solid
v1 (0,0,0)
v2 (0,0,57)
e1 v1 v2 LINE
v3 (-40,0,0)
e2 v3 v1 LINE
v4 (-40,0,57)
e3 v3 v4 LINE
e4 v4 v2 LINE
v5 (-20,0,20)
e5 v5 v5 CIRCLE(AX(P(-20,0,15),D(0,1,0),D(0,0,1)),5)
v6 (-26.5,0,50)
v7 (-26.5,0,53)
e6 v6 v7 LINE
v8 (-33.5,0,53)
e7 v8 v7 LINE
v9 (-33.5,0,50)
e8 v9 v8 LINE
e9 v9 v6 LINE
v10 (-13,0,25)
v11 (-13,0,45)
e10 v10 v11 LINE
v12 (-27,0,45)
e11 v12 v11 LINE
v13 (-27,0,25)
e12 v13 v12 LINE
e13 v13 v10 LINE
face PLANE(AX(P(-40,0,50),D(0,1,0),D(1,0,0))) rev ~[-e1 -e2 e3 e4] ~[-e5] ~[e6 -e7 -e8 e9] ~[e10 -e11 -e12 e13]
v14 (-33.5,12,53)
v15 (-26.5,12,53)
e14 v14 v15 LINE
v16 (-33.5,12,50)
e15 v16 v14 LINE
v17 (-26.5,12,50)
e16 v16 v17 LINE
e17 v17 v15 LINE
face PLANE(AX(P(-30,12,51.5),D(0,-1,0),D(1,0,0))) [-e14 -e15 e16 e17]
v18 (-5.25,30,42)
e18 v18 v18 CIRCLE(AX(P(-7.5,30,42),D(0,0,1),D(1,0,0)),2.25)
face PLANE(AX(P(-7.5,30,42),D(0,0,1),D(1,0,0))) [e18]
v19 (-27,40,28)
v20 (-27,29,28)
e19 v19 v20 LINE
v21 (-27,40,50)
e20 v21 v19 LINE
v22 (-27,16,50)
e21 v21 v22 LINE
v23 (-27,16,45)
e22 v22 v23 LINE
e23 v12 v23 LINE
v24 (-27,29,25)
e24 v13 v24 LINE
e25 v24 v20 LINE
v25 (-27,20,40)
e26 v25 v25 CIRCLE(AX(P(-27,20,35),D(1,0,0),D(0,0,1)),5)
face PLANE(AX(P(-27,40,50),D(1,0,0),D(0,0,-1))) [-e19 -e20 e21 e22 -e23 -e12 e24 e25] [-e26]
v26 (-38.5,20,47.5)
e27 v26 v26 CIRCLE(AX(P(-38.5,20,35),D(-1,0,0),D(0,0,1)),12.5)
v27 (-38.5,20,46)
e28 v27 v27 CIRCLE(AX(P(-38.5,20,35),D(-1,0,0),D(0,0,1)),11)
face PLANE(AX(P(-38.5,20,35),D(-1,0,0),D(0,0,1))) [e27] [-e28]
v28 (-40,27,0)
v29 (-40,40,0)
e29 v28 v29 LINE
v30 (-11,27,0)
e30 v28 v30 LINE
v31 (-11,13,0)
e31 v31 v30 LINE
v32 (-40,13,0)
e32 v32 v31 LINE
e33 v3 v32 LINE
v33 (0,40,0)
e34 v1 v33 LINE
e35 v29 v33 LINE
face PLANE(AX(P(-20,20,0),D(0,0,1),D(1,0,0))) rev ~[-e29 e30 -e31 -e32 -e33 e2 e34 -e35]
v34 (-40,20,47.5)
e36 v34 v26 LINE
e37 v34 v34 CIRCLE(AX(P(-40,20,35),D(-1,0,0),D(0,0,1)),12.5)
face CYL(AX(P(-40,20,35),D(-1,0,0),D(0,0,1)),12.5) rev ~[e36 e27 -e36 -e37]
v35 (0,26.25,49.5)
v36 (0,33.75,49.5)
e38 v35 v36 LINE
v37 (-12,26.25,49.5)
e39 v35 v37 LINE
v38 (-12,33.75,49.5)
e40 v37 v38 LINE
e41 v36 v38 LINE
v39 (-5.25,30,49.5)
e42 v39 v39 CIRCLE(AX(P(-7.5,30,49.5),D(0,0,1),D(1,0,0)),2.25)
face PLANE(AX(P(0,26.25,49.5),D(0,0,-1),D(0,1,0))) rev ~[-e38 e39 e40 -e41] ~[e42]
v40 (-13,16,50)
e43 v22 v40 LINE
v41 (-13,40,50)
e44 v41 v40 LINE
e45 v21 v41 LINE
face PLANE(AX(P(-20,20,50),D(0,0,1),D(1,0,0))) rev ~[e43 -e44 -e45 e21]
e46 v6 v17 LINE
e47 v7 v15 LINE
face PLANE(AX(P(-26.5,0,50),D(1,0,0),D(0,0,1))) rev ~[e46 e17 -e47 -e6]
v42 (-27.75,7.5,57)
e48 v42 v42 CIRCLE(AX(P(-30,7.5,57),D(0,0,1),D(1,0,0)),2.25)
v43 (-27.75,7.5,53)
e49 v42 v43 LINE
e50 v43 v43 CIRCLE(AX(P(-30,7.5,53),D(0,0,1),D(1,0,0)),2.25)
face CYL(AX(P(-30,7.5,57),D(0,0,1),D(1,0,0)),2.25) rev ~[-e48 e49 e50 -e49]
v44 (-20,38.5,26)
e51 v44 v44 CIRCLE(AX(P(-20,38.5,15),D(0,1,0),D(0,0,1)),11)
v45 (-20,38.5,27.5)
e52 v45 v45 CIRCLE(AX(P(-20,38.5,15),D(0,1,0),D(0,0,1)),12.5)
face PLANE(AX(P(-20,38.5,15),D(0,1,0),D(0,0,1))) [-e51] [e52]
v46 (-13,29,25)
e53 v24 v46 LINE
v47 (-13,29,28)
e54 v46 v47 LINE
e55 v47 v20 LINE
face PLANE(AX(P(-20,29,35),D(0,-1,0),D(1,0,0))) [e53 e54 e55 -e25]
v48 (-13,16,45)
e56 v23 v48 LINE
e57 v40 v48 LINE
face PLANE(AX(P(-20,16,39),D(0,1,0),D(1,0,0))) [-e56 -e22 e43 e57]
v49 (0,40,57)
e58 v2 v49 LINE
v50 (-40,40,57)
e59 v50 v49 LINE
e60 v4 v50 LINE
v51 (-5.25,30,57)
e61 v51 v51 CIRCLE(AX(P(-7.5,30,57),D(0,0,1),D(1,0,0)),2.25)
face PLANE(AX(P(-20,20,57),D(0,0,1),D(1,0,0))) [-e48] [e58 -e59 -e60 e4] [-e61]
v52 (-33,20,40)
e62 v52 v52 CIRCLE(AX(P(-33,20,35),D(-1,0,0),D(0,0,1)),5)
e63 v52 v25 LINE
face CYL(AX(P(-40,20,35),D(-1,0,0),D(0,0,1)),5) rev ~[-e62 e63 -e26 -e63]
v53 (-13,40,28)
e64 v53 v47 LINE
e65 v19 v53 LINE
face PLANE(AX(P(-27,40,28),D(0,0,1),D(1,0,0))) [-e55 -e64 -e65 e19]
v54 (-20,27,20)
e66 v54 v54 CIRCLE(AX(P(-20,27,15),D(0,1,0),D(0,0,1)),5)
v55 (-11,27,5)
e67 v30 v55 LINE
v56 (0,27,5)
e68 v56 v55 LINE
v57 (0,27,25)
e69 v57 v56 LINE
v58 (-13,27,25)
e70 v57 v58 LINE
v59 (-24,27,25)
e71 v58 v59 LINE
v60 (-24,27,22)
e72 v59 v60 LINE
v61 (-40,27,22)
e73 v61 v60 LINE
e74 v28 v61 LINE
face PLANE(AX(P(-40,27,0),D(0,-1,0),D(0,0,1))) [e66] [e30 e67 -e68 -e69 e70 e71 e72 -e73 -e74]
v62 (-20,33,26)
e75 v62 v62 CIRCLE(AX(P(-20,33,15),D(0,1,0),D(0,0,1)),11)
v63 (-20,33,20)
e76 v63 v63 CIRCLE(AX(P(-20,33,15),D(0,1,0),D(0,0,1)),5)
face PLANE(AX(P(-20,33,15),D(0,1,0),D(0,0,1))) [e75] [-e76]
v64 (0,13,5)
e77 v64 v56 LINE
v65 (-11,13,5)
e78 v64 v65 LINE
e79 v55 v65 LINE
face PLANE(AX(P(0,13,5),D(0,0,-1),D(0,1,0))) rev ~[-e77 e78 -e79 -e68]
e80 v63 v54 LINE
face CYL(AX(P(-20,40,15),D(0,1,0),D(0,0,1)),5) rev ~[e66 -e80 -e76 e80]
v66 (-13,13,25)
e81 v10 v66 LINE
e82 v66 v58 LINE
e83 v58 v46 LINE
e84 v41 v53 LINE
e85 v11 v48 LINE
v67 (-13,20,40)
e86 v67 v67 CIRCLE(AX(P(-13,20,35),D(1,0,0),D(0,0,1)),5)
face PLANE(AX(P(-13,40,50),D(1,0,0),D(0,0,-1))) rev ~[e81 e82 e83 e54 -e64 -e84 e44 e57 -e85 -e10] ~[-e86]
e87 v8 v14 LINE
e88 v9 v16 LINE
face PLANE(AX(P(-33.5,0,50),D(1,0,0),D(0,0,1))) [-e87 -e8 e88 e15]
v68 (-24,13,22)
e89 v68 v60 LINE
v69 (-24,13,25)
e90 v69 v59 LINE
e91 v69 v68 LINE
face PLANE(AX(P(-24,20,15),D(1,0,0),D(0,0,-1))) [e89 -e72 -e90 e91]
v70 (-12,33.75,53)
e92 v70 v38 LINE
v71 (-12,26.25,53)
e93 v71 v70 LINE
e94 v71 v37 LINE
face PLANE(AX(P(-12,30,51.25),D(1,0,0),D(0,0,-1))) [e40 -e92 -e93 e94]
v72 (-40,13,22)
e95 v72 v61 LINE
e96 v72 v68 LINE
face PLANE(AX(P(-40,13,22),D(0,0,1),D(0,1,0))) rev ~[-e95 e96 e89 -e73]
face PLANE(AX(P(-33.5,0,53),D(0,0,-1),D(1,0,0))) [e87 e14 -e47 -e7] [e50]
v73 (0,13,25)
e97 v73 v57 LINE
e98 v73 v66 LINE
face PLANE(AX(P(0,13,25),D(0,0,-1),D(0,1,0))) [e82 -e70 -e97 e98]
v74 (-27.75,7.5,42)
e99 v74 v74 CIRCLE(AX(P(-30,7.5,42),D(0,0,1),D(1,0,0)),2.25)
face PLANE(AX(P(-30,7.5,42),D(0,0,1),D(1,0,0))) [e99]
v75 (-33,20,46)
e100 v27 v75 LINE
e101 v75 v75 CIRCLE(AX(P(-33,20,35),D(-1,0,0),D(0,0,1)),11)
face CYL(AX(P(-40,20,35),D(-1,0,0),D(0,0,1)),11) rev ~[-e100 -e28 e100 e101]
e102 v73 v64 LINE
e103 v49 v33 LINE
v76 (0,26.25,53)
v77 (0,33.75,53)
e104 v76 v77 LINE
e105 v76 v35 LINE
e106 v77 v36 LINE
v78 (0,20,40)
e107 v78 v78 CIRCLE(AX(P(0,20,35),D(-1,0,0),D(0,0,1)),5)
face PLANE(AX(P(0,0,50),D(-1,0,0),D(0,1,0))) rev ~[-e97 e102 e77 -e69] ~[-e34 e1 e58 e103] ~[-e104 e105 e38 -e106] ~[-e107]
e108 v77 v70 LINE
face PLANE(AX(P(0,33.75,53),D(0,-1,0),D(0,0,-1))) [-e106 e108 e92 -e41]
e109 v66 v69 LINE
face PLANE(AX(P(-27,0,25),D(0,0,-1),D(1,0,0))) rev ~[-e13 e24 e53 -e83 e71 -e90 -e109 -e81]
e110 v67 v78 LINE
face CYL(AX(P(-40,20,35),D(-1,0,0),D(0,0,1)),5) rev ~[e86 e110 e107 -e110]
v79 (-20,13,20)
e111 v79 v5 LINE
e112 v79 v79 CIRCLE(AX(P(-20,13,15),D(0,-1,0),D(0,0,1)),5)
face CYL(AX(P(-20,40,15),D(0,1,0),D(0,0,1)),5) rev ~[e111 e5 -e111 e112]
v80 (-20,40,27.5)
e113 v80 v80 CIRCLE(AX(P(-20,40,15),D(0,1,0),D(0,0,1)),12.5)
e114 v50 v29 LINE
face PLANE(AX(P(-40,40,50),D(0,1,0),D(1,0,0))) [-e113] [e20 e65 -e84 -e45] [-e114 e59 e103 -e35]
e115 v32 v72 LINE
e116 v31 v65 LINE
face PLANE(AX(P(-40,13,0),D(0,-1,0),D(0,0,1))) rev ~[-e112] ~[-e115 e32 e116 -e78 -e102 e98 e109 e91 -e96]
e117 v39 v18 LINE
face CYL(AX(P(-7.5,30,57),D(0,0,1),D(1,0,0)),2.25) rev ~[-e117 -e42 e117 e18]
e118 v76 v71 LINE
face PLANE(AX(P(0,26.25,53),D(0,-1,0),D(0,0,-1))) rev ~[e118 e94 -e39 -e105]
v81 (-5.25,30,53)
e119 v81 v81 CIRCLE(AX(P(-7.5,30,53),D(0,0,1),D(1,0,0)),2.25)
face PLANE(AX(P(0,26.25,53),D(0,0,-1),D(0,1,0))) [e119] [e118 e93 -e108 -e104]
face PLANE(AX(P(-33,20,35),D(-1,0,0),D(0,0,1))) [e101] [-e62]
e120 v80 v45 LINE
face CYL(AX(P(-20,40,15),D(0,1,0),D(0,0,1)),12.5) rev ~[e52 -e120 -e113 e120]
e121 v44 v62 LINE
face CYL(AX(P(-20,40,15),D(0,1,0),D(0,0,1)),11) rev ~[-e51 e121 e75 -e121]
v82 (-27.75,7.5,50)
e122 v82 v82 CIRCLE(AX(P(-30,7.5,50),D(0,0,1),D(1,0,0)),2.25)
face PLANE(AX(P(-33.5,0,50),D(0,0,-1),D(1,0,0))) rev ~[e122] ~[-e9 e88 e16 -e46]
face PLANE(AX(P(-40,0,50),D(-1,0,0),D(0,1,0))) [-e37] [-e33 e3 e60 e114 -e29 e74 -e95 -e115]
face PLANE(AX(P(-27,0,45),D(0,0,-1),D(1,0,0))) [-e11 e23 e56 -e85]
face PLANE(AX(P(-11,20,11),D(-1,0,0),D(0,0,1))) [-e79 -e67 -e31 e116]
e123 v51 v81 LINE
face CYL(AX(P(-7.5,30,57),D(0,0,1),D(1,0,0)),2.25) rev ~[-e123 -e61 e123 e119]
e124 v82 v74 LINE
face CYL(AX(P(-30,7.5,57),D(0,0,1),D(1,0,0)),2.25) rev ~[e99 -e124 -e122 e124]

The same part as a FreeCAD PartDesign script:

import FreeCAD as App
import Part
import Sketcher

V = App.Vector


def add_polygon(sketch, points):
    """Adds a closed chain of lines whose ends are joined by coincident constraints."""
    first, n = sketch.GeometryCount, len(points)
    for a, b in zip(points, points[1:] + points[:1]):
        sketch.addGeometry(Part.LineSegment(App.Vector(*a, 0), App.Vector(*b, 0)), False)
    for i in range(n):
        sketch.addConstraint(Sketcher.Constraint("Coincident", first + i, 2, first + (i + 1) % n, 1))

doc = App.newDocument("Part")
params = doc.addObject("Spreadsheet::Sheet", "Params")
for row, (alias, value) in enumerate([
    ("sketch1_width", "40 mm"),
    ("pad1_length", "50 mm"),
    ("sketch2_diameter", "10 mm"),
    ("sketch3_diameter", "10 mm"),
    ("sketch4_width", "14 mm"),
    ("sketch4_height", "22 mm"),
    ("pocket3_length", "29 mm"),
    ("sketch5_width", "14 mm"),
    ("sketch5_height", "20 mm"),
    ("pocket4_length", "29 mm"),
    ("sketch6_width", "14 mm"),
    ("sketch6_height", "20 mm"),
    ("pocket5_length", "24 mm"),
    ("sketch7_width", "14 mm"),
    ("sketch7_height", "22 mm"),
    ("pocket6_length", "24 mm"),
    ("sketch8_diameter", "22 mm"),
    ("pocket7_length", "7 mm"),
    ("sketch9_diameter", "25 mm"),
    ("pocket8_length", "1.5 mm"),
    ("sketch10_diameter", "22 mm"),
    ("pocket9_length", "7 mm"),
    ("sketch11_diameter", "25 mm"),
    ("pocket10_length", "1.5 mm"),
    ("sketch12_width", "40 mm"),
    ("pad2_length", "7 mm"),
    ("sketch13_diameter", "4.5 mm"),
    ("pocket11_length", "15 mm"),
    ("sketch14_width", "7 mm"),
    ("sketch14_height", "3 mm"),
    ("pocket12_length", "12 mm"),
    ("sketch15_width", "7.5 mm"),
    ("sketch15_height", "3.5 mm"),
    ("pocket13_length", "12 mm"),
], start=1):
    params.set(f"A{row}", alias)
    params.set(f"B{row}", "=" + value)
    params.setAlias(f"B{row}", alias)

body = doc.addObject("PartDesign::Body", "Body")

sketch1 = body.newObject("Sketcher::SketchObject", "Sketch")
sketch1.AttachmentSupport = (doc.getObject("XY_Plane"), [""])
sketch1.MapMode = "FlatFace"
add_polygon(sketch1, [(-40, 40), (-40, 0), (0, 0), (0, 40)])
sketch1.addConstraint([
    Sketcher.Constraint("Vertical", 0),
    Sketcher.Constraint("Horizontal", 1),
    Sketcher.Constraint("Vertical", 2),
    Sketcher.Constraint("Horizontal", 3),
    Sketcher.Constraint("Coincident", 1, 2, -1, 1),
    Sketcher.Constraint("Equal", 3, 0),
    Sketcher.Constraint("DistanceX", 1, 1, 1, 2, 40.0),
])
sketch1.setExpression("Constraints[10]", "Params.sketch1_width")
pad1 = body.newObject("PartDesign::Pad", "Pad")
pad1.Profile = sketch1
pad1.setExpression("Length", "Params.pad1_length")

sketch2 = body.newObject("Sketcher::SketchObject", "Sketch001")
sketch2.AttachmentSupport = (doc.getObject("XZ_Plane"), [""])
sketch2.MapMode = "FlatFace"
sketch2.AttachmentOffset = App.Placement(V(0, 0, -40), App.Rotation())
sketch2.addGeometry(Part.Circle(V(-20, 15, 0), V(0, 0, 1), 5), False)
sketch2.addConstraint([
    Sketcher.Constraint("Diameter", 0, 10.0),
    Sketcher.Constraint("DistanceX", 0, 3, -1, 1, 20.0),
    Sketcher.Constraint("DistanceY", -1, 1, 0, 3, 15.0),
])
sketch2.setExpression("Constraints[0]", "Params.sketch2_diameter")
pocket1 = body.newObject("PartDesign::Pocket", "Pocket")
pocket1.Profile = sketch2
pocket1.Type = "ThroughAll"
pocket1.Reversed = True

sketch3 = body.newObject("Sketcher::SketchObject", "Sketch002")
sketch3.AttachmentSupport = (doc.getObject("YZ_Plane"), [""])
sketch3.MapMode = "FlatFace"
sketch3.AttachmentOffset = App.Placement(V(0, 0, -40), App.Rotation())
sketch3.addGeometry(Part.Circle(V(20, 35, 0), V(0, 0, 1), 5), False)
sketch3.addConstraint([
    Sketcher.Constraint("Diameter", 0, 10.0),
    Sketcher.Constraint("DistanceX", -1, 1, 0, 3, 20.0),
    Sketcher.Constraint("DistanceY", -1, 1, 0, 3, 35.0),
])
sketch3.setExpression("Constraints[0]", "Params.sketch3_diameter")
pocket2 = body.newObject("PartDesign::Pocket", "Pocket001")
pocket2.Profile = sketch3
pocket2.Type = "ThroughAll"
pocket2.Reversed = True

sketch4 = body.newObject("Sketcher::SketchObject", "Sketch003")
sketch4.AttachmentSupport = (doc.getObject("YZ_Plane"), [""])
sketch4.MapMode = "FlatFace"
sketch4.AttachmentOffset = App.Placement(V(0, 0, -40), App.Rotation())
add_polygon(sketch4, [(27, 0), (13, 0), (13, 22), (27, 22)])
sketch4.addConstraint([
    Sketcher.Constraint("Horizontal", 0),
    Sketcher.Constraint("Vertical", 1),
    Sketcher.Constraint("Horizontal", 2),
    Sketcher.Constraint("Vertical", 3),
    Sketcher.Constraint("PointOnObject", 0, 2, -1),
    Sketcher.Constraint("DistanceX", 0, 2, 0, 1, 14.0),
    Sketcher.Constraint("DistanceY", 1, 1, 1, 2, 22.0),
    Sketcher.Constraint("DistanceX", -1, 1, 0, 2, 13.0),
])
sketch4.setExpression("Constraints[9]", "Params.sketch4_width")
sketch4.setExpression("Constraints[10]", "Params.sketch4_height")
pocket3 = body.newObject("PartDesign::Pocket", "Pocket002")
pocket3.Profile = sketch4
pocket3.setExpression("Length", "Params.pocket3_length")
pocket3.Reversed = True

sketch5 = body.newObject("Sketcher::SketchObject", "Sketch004")
sketch5.AttachmentSupport = (doc.getObject("XZ_Plane"), [""])
sketch5.MapMode = "FlatFace"
add_polygon(sketch5, [(-27, 45), (-27, 25), (-13, 25), (-13, 45)])
sketch5.addConstraint([
    Sketcher.Constraint("Vertical", 0),
    Sketcher.Constraint("Horizontal", 1),
    Sketcher.Constraint("Vertical", 2),
    Sketcher.Constraint("Horizontal", 3),
    Sketcher.Constraint("DistanceX", 1, 1, 1, 2, 14.0),
    Sketcher.Constraint("DistanceY", 0, 2, 0, 1, 20.0),
    Sketcher.Constraint("DistanceX", 0, 2, -1, 1, 27.0),
    Sketcher.Constraint("DistanceY", -1, 1, 0, 2, 25.0),
])
sketch5.setExpression("Constraints[8]", "Params.sketch5_width")
sketch5.setExpression("Constraints[9]", "Params.sketch5_height")
pocket4 = body.newObject("PartDesign::Pocket", "Pocket003")
pocket4.Profile = sketch5
pocket4.setExpression("Length", "Params.pocket4_length")

sketch6 = body.newObject("Sketcher::SketchObject", "Sketch005")
sketch6.AttachmentSupport = (doc.getObject("YZ_Plane"), [""])
sketch6.MapMode = "FlatFace"
add_polygon(sketch6, [(27, 25), (13, 25), (13, 5), (27, 5)])
sketch6.addConstraint([
    Sketcher.Constraint("Horizontal", 0),
    Sketcher.Constraint("Vertical", 1),
    Sketcher.Constraint("Horizontal", 2),
    Sketcher.Constraint("Vertical", 3),
    Sketcher.Constraint("DistanceX", 0, 2, 0, 1, 14.0),
    Sketcher.Constraint("DistanceY", 1, 2, 1, 1, 20.0),
    Sketcher.Constraint("DistanceX", -1, 1, 0, 2, 13.0),
    Sketcher.Constraint("DistanceY", -1, 1, 0, 2, 25.0),
])
sketch6.setExpression("Constraints[8]", "Params.sketch6_width")
sketch6.setExpression("Constraints[9]", "Params.sketch6_height")
pocket5 = body.newObject("PartDesign::Pocket", "Pocket004")
pocket5.Profile = sketch6
pocket5.setExpression("Length", "Params.pocket5_length")

sketch7 = body.newObject("Sketcher::SketchObject", "Sketch006")
sketch7.AttachmentSupport = (doc.getObject("XZ_Plane"), [""])
sketch7.MapMode = "FlatFace"
sketch7.AttachmentOffset = App.Placement(V(0, 0, -40), App.Rotation())
add_polygon(sketch7, [(-27, 28), (-27, 50), (-13, 50), (-13, 28)])
sketch7.addConstraint([
    Sketcher.Constraint("Vertical", 0),
    Sketcher.Constraint("Horizontal", 1),
    Sketcher.Constraint("Vertical", 2),
    Sketcher.Constraint("Horizontal", 3),
    Sketcher.Constraint("DistanceX", 1, 1, 1, 2, 14.0),
    Sketcher.Constraint("DistanceY", 0, 1, 0, 2, 22.0),
    Sketcher.Constraint("DistanceX", 0, 2, -1, 1, 27.0),
    Sketcher.Constraint("DistanceY", -1, 1, 0, 2, 50.0),
])
sketch7.setExpression("Constraints[8]", "Params.sketch7_width")
sketch7.setExpression("Constraints[9]", "Params.sketch7_height")
pocket6 = body.newObject("PartDesign::Pocket", "Pocket005")
pocket6.Profile = sketch7
pocket6.setExpression("Length", "Params.pocket6_length")
pocket6.Reversed = True

sketch8 = body.newObject("Sketcher::SketchObject", "Sketch007")
sketch8.AttachmentSupport = (doc.getObject("XZ_Plane"), [""])
sketch8.MapMode = "FlatFace"
sketch8.AttachmentOffset = App.Placement(V(0, 0, -40), App.Rotation())
sketch8.addGeometry(Part.Circle(V(-20, 15, 0), V(0, 0, 1), 11), False)
sketch8.addConstraint([
    Sketcher.Constraint("Diameter", 0, 22.0),
    Sketcher.Constraint("DistanceX", 0, 3, -1, 1, 20.0),
    Sketcher.Constraint("DistanceY", -1, 1, 0, 3, 15.0),
])
sketch8.setExpression("Constraints[0]", "Params.sketch8_diameter")
pocket7 = body.newObject("PartDesign::Pocket", "Pocket006")
pocket7.Profile = sketch8
pocket7.setExpression("Length", "Params.pocket7_length")
pocket7.Reversed = True

sketch9 = body.newObject("Sketcher::SketchObject", "Sketch008")
sketch9.AttachmentSupport = (doc.getObject("XZ_Plane"), [""])
sketch9.MapMode = "FlatFace"
sketch9.AttachmentOffset = App.Placement(V(0, 0, -40), App.Rotation())
sketch9.addGeometry(Part.Circle(V(-20, 15, 0), V(0, 0, 1), 12), False)
sketch9.addConstraint([
    Sketcher.Constraint("Diameter", 0, 25.0),
    Sketcher.Constraint("DistanceX", 0, 3, -1, 1, 20.0),
    Sketcher.Constraint("DistanceY", -1, 1, 0, 3, 15.0),
])
sketch9.setExpression("Constraints[0]", "Params.sketch9_diameter")
pocket8 = body.newObject("PartDesign::Pocket", "Pocket007")
pocket8.Profile = sketch9
pocket8.setExpression("Length", "Params.pocket8_length")
pocket8.Reversed = True

sketch10 = body.newObject("Sketcher::SketchObject", "Sketch009")
sketch10.AttachmentSupport = (doc.getObject("YZ_Plane"), [""])
sketch10.MapMode = "FlatFace"
sketch10.AttachmentOffset = App.Placement(V(0, 0, -40), App.Rotation())
sketch10.addGeometry(Part.Circle(V(20, 35, 0), V(0, 0, 1), 11), False)
sketch10.addConstraint([
    Sketcher.Constraint("Diameter", 0, 22.0),
    Sketcher.Constraint("DistanceX", -1, 1, 0, 3, 20.0),
    Sketcher.Constraint("DistanceY", -1, 1, 0, 3, 35.0),
])
sketch10.setExpression("Constraints[0]", "Params.sketch10_diameter")
pocket9 = body.newObject("PartDesign::Pocket", "Pocket008")
pocket9.Profile = sketch10
pocket9.setExpression("Length", "Params.pocket9_length")
pocket9.Reversed = True

sketch11 = body.newObject("Sketcher::SketchObject", "Sketch010")
sketch11.AttachmentSupport = (doc.getObject("YZ_Plane"), [""])
sketch11.MapMode = "FlatFace"
sketch11.AttachmentOffset = App.Placement(V(0, 0, -40), App.Rotation())
sketch11.addGeometry(Part.Circle(V(20, 35, 0), V(0, 0, 1), 12), False)
sketch11.addConstraint([
    Sketcher.Constraint("Diameter", 0, 25.0),
    Sketcher.Constraint("DistanceX", -1, 1, 0, 3, 20.0),
    Sketcher.Constraint("DistanceY", -1, 1, 0, 3, 35.0),
])
sketch11.setExpression("Constraints[0]", "Params.sketch11_diameter")
pocket10 = body.newObject("PartDesign::Pocket", "Pocket009")
pocket10.Profile = sketch11
pocket10.setExpression("Length", "Params.pocket10_length")
pocket10.Reversed = True

sketch12 = body.newObject("Sketcher::SketchObject", "Sketch011")
sketch12.AttachmentSupport = (doc.getObject("XY_Plane"), [""])
sketch12.MapMode = "FlatFace"
sketch12.AttachmentOffset = App.Placement(V(0, 0, 50), App.Rotation())
add_polygon(sketch12, [(-40, 40), (-40, 0), (0, 0), (0, 40)])
sketch12.addConstraint([
    Sketcher.Constraint("Vertical", 0),
    Sketcher.Constraint("Horizontal", 1),
    Sketcher.Constraint("Vertical", 2),
    Sketcher.Constraint("Horizontal", 3),
    Sketcher.Constraint("Coincident", 1, 2, -1, 1),
    Sketcher.Constraint("Equal", 3, 0),
    Sketcher.Constraint("DistanceX", 1, 1, 1, 2, 40.0),
])
sketch12.setExpression("Constraints[10]", "Params.sketch12_width")
pad2 = body.newObject("PartDesign::Pad", "Pad001")
pad2.Profile = sketch12
pad2.setExpression("Length", "Params.pad2_length")

sketch13 = body.newObject("Sketcher::SketchObject", "Sketch012")
sketch13.AttachmentSupport = (doc.getObject("XY_Plane"), [""])
sketch13.MapMode = "FlatFace"
sketch13.AttachmentOffset = App.Placement(V(0, 0, 57), App.Rotation())
sketch13.addGeometry([
    Part.Circle(V(-30, 7.5, 0), V(0, 0, 1), 2.2),
    Part.Circle(V(-7.5, 30, 0), V(0, 0, 1), 2.2),
], False)
sketch13.addConstraint([
    Sketcher.Constraint("Equal", 0, 1),
    Sketcher.Constraint("Diameter", 0, 4.5),
    Sketcher.Constraint("DistanceX", 0, 3, -1, 1, 30.0),
    Sketcher.Constraint("DistanceY", -1, 1, 1, 3, 30.0),
    Sketcher.Constraint("DistanceY", -1, 1, 0, 3, 7.5),
    Sketcher.Constraint("DistanceX", 1, 3, -1, 1, 7.5),
])
sketch13.setExpression("Constraints[1]", "Params.sketch13_diameter")
pocket11 = body.newObject("PartDesign::Pocket", "Pocket010")
pocket11.Profile = sketch13
pocket11.setExpression("Length", "Params.pocket11_length")

sketch14 = body.newObject("Sketcher::SketchObject", "Sketch013")
sketch14.AttachmentSupport = (doc.getObject("XZ_Plane"), [""])
sketch14.MapMode = "FlatFace"
add_polygon(sketch14, [(-33.5, 53), (-33.5, 50), (-26.5, 50), (-26.5, 53)])
sketch14.addConstraint([
    Sketcher.Constraint("Vertical", 0),
    Sketcher.Constraint("Horizontal", 1),
    Sketcher.Constraint("Vertical", 2),
    Sketcher.Constraint("Horizontal", 3),
    Sketcher.Constraint("DistanceX", 1, 1, 1, 2, 7.0),
    Sketcher.Constraint("DistanceY", 0, 2, 0, 1, 3.0),
    Sketcher.Constraint("DistanceY", -1, 1, 0, 2, 50.0),
    Sketcher.Constraint("DistanceX", 0, 2, -1, 1, 33.5),
])
sketch14.setExpression("Constraints[8]", "Params.sketch14_width")
sketch14.setExpression("Constraints[9]", "Params.sketch14_height")
pocket12 = body.newObject("PartDesign::Pocket", "Pocket011")
pocket12.Profile = sketch14
pocket12.setExpression("Length", "Params.pocket12_length")

sketch15 = body.newObject("Sketcher::SketchObject", "Sketch014")
sketch15.AttachmentSupport = (doc.getObject("YZ_Plane"), [""])
sketch15.MapMode = "FlatFace"
add_polygon(sketch15, [(33.8, 53), (26.2, 53), (26.2, 49.5), (33.8, 49.5)])
sketch15.addConstraint([
    Sketcher.Constraint("Horizontal", 0),
    Sketcher.Constraint("Vertical", 1),
    Sketcher.Constraint("Horizontal", 2),
    Sketcher.Constraint("Vertical", 3),
    Sketcher.Constraint("DistanceX", 0, 2, 0, 1, 7.5),
    Sketcher.Constraint("DistanceY", 1, 2, 1, 1, 3.5),
    Sketcher.Constraint("DistanceY", -1, 1, 0, 2, 53.0),
    Sketcher.Constraint("DistanceX", -1, 1, 0, 2, 26.25),
])
sketch15.setExpression("Constraints[8]", "Params.sketch15_width")
sketch15.setExpression("Constraints[9]", "Params.sketch15_height")
pocket13 = body.newObject("PartDesign::Pocket", "Pocket012")
pocket13.Profile = sketch15
pocket13.setExpression("Length", "Params.pocket13_length")

doc.recompute()
